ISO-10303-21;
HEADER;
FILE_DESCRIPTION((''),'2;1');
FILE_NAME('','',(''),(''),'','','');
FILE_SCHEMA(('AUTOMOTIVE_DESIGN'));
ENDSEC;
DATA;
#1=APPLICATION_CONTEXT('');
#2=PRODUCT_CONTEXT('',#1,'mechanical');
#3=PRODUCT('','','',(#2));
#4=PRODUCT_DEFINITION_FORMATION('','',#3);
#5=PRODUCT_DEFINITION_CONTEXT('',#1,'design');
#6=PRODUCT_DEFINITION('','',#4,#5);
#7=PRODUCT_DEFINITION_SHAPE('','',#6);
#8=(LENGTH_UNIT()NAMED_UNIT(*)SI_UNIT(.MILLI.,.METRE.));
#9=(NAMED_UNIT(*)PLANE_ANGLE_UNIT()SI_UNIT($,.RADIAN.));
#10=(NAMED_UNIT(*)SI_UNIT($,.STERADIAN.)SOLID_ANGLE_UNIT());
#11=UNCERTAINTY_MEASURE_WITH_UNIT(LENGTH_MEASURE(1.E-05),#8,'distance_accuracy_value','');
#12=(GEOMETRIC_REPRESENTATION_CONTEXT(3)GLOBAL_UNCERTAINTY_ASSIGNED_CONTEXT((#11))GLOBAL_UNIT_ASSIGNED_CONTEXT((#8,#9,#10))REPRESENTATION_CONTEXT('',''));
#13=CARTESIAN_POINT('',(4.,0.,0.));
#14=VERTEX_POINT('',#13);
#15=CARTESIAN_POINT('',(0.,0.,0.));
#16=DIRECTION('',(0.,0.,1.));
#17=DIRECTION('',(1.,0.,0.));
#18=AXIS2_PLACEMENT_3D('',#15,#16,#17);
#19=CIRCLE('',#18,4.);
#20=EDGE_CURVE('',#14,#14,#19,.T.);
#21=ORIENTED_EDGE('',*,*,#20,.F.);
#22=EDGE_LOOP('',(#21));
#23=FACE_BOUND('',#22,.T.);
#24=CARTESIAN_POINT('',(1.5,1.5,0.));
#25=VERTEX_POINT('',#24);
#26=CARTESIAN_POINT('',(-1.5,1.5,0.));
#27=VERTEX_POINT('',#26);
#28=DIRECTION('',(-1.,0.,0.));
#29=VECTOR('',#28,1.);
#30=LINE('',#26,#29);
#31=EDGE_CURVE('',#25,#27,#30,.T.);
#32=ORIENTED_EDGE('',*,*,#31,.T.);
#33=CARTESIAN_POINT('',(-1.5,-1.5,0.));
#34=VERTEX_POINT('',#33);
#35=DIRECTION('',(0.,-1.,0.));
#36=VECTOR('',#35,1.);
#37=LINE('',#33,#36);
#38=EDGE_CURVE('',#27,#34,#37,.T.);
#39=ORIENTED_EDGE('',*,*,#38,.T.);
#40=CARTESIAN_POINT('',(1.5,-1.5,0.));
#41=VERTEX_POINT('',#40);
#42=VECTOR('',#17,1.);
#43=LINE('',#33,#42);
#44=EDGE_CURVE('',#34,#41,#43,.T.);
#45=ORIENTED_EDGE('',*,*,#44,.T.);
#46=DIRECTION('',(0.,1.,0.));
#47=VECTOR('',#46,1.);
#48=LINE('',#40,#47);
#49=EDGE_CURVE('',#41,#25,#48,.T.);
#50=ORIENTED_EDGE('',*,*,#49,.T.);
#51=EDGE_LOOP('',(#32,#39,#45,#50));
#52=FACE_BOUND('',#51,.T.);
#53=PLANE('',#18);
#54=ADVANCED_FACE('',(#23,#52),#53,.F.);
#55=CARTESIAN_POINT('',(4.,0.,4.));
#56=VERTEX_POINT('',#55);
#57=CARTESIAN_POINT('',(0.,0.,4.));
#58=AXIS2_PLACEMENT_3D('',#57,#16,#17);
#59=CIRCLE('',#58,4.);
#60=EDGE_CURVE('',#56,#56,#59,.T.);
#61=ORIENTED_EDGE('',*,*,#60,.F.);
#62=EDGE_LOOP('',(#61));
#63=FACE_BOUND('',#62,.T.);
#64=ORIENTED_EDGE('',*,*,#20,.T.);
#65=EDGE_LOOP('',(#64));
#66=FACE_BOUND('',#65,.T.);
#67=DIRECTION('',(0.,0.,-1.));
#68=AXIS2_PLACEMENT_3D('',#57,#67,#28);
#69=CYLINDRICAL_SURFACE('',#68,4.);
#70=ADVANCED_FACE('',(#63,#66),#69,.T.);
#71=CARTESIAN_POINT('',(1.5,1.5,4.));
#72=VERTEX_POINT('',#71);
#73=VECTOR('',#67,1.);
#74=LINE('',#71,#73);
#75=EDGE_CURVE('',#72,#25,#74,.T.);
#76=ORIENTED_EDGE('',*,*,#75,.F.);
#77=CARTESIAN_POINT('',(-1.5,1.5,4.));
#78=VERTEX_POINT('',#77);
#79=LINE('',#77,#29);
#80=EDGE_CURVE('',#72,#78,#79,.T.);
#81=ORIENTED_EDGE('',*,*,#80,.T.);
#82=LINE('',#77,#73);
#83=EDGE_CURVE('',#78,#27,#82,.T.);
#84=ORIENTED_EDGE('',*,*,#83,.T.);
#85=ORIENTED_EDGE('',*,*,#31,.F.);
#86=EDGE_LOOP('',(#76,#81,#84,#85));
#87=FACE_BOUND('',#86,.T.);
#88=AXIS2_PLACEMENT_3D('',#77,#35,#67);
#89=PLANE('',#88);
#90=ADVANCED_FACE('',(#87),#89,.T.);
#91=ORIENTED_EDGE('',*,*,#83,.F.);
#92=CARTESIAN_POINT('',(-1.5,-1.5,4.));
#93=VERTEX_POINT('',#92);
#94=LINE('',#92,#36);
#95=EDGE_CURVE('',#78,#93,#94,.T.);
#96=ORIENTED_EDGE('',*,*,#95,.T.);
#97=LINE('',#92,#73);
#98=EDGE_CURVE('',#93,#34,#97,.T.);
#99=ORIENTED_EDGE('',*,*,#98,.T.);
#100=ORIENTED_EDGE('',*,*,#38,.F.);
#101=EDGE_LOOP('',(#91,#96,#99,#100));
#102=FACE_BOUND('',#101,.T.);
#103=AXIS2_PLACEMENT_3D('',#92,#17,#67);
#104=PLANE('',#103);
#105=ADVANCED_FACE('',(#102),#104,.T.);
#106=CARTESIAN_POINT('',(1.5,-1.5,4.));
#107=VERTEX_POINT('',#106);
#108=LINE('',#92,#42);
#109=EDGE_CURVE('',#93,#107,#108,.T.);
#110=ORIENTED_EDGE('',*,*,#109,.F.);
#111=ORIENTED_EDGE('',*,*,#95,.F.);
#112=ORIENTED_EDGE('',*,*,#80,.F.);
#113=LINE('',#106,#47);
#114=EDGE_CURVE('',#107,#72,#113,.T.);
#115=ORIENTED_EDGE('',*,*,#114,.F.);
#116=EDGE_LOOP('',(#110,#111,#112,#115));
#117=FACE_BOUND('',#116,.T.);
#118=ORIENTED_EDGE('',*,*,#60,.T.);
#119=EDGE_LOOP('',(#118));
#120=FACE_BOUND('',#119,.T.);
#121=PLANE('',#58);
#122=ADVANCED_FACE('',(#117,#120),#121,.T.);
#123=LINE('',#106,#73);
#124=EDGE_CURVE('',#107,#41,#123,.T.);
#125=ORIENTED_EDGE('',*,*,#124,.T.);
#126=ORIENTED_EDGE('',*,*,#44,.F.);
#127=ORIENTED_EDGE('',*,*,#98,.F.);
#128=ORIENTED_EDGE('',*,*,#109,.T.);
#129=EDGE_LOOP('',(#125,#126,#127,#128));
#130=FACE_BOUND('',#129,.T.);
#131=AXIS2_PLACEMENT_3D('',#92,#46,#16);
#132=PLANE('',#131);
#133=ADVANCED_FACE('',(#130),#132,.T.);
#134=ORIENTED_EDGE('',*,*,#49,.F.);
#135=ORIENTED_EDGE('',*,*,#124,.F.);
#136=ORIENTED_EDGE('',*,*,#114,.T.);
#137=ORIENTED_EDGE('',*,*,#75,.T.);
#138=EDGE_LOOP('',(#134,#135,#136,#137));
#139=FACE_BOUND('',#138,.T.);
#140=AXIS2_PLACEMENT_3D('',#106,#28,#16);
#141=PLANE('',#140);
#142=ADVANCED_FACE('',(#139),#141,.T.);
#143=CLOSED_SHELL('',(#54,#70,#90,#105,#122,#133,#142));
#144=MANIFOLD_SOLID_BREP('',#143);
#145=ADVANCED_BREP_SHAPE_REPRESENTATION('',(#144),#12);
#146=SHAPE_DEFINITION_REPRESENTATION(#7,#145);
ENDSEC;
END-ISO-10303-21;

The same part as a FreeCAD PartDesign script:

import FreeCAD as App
import Part
import Sketcher

V = App.Vector

doc = App.newDocument("Part")
params = doc.addObject("Spreadsheet::Sheet", "Params")
for row, (alias, value) in enumerate([
    ("sketch1_diameter", "8 mm"),
    ("sketch1_width", "3 mm"),
    ("pad1_length", "4 mm"),
], start=1):
    params.set(f"A{row}", alias)
    params.set(f"B{row}", "=" + value)
    params.setAlias(f"B{row}", alias)

body = doc.addObject("PartDesign::Body", "Body")

sketch1 = body.newObject("Sketcher::SketchObject", "Sketch")
sketch1.AttachmentSupport = (doc.getObject("XY_Plane"), [""])
sketch1.MapMode = "FlatFace"
sketch1.addGeometry([
    Part.Circle(V(0, 0, 0), V(0, 0, 1), 4),
    Part.LineSegment(V(1.5, -1.5, 0), V(-1.5, -1.5, 0)),
    Part.LineSegment(V(-1.5, -1.5, 0), V(-1.5, 1.5, 0)),
    Part.LineSegment(V(-1.5, 1.5, 0), V(1.5, 1.5, 0)),
    Part.LineSegment(V(1.5, 1.5, 0), V(1.5, -1.5, 0)),
], False)
sketch1.addConstraint([
    Sketcher.Constraint("Coincident", 1, 2, 2, 1),
    Sketcher.Constraint("Coincident", 2, 2, 3, 1),
    Sketcher.Constraint("Coincident", 3, 2, 4, 1),
    Sketcher.Constraint("Coincident", 4, 2, 1, 1),
    Sketcher.Constraint("Horizontal", 1),
    Sketcher.Constraint("Vertical", 2),
    Sketcher.Constraint("Horizontal", 3),
    Sketcher.Constraint("Vertical", 4),
    Sketcher.Constraint("Coincident", 0, 3, -1, 1),
    Sketcher.Constraint("Symmetric", 1, 2, 3, 2, -1, 1),
    Sketcher.Constraint("Equal", 3, 2),
    Sketcher.Constraint("Diameter", 0, 8.0),
    Sketcher.Constraint("DistanceX", 1, 2, 1, 1, 3.0),
])
sketch1.setExpression("Constraints[11]", "Params.sketch1_diameter")
sketch1.setExpression("Constraints[12]", "Params.sketch1_width")
pad1 = body.newObject("PartDesign::Pad", "Pad")
pad1.Profile = sketch1
pad1.setExpression("Length", "Params.pad1_length")

doc.recompute()
